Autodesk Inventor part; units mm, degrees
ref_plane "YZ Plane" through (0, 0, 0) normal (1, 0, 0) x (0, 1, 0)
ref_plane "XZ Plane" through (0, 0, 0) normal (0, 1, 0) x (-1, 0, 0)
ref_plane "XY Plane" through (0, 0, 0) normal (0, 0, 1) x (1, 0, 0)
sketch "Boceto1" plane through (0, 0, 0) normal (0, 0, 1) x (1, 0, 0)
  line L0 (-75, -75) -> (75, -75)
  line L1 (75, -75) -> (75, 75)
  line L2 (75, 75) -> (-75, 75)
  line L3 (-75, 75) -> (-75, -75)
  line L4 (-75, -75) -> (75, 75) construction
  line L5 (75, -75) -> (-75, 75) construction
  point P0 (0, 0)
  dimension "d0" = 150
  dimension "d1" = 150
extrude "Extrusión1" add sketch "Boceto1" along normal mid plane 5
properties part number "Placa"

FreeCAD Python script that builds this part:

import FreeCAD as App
import Part
import Sketcher
from FreeCAD import Vector

doc = App.newDocument("Part")
body = doc.addObject("PartDesign::Body", "Body")

# Sketch on XY plane
sketch1 = body.newObject("Sketcher::SketchObject", "Sketch")
sketch1.AttachmentSupport = (doc.getObject("XY_Plane"), [""])
sketch1.MapMode = "FlatFace"
sketch1.addGeometry(Part.LineSegment(Vector(-75, 75, 0), Vector(-75, -75, 0)), False)
sketch1.addGeometry(Part.LineSegment(Vector(-75, -75, 0), Vector(75, -75, 0)), False)
sketch1.addGeometry(Part.LineSegment(Vector(75, -75, 0), Vector(75, 75, 0)), False)
sketch1.addGeometry(Part.LineSegment(Vector(75, 75, 0), Vector(-75, 75, 0)), False)
sketch1.addConstraint(Sketcher.Constraint("Coincident", 0, 2, 1, 1))
sketch1.addConstraint(Sketcher.Constraint("Coincident", 1, 2, 2, 1))
sketch1.addConstraint(Sketcher.Constraint("Coincident", 2, 2, 3, 1))
sketch1.addConstraint(Sketcher.Constraint("Coincident", 3, 2, 0, 1))
sketch1.addConstraint(Sketcher.Constraint("Vertical", 0))
sketch1.addConstraint(Sketcher.Constraint("Horizontal", 1))
sketch1.addConstraint(Sketcher.Constraint("Vertical", 2))
sketch1.addConstraint(Sketcher.Constraint("Horizontal", 3))
sketch1.addConstraint(Sketcher.Constraint("Symmetric", 0, 2, 2, 2, -1, 1))
sketch1.addConstraint(Sketcher.Constraint("Equal", 3, 0))
sketch1.addConstraint(Sketcher.Constraint("DistanceX", 1, 1, 1, 2, 150.0))
pad1 = body.newObject("PartDesign::Pad", "Pad")
pad1.Profile = sketch1
pad1.Length = 5
pad1.Midplane = True

doc.recompute()
